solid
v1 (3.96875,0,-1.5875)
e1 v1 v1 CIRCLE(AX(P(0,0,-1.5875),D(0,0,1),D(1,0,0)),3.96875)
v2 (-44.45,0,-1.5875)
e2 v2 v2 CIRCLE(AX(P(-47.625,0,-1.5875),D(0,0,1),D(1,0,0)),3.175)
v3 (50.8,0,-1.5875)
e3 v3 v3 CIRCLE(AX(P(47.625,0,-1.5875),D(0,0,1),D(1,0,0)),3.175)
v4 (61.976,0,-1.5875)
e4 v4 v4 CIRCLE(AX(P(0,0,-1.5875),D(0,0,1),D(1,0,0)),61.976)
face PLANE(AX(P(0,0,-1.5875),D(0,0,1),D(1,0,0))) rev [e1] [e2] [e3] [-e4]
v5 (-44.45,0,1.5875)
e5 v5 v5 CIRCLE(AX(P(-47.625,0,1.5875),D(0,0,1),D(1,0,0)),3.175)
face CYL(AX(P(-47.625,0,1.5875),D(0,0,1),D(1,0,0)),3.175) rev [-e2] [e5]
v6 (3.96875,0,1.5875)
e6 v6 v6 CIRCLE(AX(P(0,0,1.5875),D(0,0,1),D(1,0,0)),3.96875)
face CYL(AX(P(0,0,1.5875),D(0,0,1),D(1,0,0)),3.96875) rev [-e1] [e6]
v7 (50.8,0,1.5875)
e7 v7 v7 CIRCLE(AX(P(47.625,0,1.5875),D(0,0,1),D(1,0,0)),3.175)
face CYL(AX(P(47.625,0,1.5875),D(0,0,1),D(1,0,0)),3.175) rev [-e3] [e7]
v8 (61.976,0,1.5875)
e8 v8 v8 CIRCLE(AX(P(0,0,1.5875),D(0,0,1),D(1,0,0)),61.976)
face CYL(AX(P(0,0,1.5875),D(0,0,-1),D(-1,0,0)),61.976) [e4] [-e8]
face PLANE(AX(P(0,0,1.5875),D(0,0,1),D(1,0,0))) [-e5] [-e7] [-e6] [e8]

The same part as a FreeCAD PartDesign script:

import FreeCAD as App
import Part
import Sketcher

V = App.Vector
Q = App.Units.Quantity

doc = App.newDocument("Part")
body = doc.addObject("PartDesign::Body", "Body")

# Sketch on XY plane
sketch1 = body.newObject("Sketcher::SketchObject", "Sketch")
sketch1.AttachmentSupport = (doc.getObject("XY_Plane"), [""])
sketch1.MapMode = "FlatFace"
sketch1.addGeometry(Part.Circle(V(0, 0, 0), V(0, 0, 1), 62), False)
sketch1.addConstraint([
    Sketcher.Constraint("Coincident", 0, 3, -1, 1),
    Sketcher.Constraint("Diameter", 0, Q("4.88 in")),
])
pad1 = body.newObject("PartDesign::Pad", "Pad")
pad1.Profile = sketch1
pad1.Length = Q("0.125 in")
pad1.Midplane = True

# Sketch on XY plane
sketch2 = body.newObject("Sketcher::SketchObject", "Sketch001")
sketch2.AttachmentSupport = (doc.getObject("XY_Plane"), [""])
sketch2.MapMode = "FlatFace"
sketch2.AttachmentOffset = App.Placement(V(0, 0, 0.0625 * 25.4), App.Rotation())
sketch2.addGeometry([
    Part.Circle(V(-47.6, 0, 0), V(0, 0, 1), 3.2),
    Part.Circle(V(47.6, 0, 0), V(0, 0, 1), 3.2),
], False)
sketch2.addConstraint([
    Sketcher.Constraint("Equal", 0, 1),
    Sketcher.Constraint("Symmetric", 0, 3, 1, 3, -1, 1),
    Sketcher.Constraint("PointOnObject", 0, 3, -1),
    Sketcher.Constraint("Diameter", 0, Q("0.25 in")),
    Sketcher.Constraint("DistanceX", 0, 3, 1, 3, Q("3.75 in")),
])
doc.recompute()
hole = body.newObject("PartDesign::Hole", "Hole")
hole.Profile = sketch2
hole.ThreadType = "None"
hole.Diameter = Q("0.25 in")
hole.DepthType = "ThroughAll"

# Sketch on XY plane
sketch3 = body.newObject("Sketcher::SketchObject", "Sketch002")
sketch3.AttachmentSupport = (doc.getObject("XY_Plane"), [""])
sketch3.MapMode = "FlatFace"
sketch3.AttachmentOffset = App.Placement(V(0, 0, 0.0625 * 25.4), App.Rotation())
sketch3.addGeometry(Part.Circle(V(0, 0, 0), V(0, 0, 1), 4), False)
sketch3.addConstraint([
    Sketcher.Constraint("Coincident", 0, 3, -1, 1),
    Sketcher.Constraint("Diameter", 0, Q("0.3125 in")),
])
doc.recompute()
hole2 = body.newObject("PartDesign::Hole", "Hole001")
hole2.Profile = sketch3
hole2.ThreadType = "None"
hole2.Diameter = Q("0.3125 in")
hole2.DepthType = "Dimension"
hole2.Depth = Q("0.13 in")
hole2.DrillPoint = "Flat"

doc.recompute()
